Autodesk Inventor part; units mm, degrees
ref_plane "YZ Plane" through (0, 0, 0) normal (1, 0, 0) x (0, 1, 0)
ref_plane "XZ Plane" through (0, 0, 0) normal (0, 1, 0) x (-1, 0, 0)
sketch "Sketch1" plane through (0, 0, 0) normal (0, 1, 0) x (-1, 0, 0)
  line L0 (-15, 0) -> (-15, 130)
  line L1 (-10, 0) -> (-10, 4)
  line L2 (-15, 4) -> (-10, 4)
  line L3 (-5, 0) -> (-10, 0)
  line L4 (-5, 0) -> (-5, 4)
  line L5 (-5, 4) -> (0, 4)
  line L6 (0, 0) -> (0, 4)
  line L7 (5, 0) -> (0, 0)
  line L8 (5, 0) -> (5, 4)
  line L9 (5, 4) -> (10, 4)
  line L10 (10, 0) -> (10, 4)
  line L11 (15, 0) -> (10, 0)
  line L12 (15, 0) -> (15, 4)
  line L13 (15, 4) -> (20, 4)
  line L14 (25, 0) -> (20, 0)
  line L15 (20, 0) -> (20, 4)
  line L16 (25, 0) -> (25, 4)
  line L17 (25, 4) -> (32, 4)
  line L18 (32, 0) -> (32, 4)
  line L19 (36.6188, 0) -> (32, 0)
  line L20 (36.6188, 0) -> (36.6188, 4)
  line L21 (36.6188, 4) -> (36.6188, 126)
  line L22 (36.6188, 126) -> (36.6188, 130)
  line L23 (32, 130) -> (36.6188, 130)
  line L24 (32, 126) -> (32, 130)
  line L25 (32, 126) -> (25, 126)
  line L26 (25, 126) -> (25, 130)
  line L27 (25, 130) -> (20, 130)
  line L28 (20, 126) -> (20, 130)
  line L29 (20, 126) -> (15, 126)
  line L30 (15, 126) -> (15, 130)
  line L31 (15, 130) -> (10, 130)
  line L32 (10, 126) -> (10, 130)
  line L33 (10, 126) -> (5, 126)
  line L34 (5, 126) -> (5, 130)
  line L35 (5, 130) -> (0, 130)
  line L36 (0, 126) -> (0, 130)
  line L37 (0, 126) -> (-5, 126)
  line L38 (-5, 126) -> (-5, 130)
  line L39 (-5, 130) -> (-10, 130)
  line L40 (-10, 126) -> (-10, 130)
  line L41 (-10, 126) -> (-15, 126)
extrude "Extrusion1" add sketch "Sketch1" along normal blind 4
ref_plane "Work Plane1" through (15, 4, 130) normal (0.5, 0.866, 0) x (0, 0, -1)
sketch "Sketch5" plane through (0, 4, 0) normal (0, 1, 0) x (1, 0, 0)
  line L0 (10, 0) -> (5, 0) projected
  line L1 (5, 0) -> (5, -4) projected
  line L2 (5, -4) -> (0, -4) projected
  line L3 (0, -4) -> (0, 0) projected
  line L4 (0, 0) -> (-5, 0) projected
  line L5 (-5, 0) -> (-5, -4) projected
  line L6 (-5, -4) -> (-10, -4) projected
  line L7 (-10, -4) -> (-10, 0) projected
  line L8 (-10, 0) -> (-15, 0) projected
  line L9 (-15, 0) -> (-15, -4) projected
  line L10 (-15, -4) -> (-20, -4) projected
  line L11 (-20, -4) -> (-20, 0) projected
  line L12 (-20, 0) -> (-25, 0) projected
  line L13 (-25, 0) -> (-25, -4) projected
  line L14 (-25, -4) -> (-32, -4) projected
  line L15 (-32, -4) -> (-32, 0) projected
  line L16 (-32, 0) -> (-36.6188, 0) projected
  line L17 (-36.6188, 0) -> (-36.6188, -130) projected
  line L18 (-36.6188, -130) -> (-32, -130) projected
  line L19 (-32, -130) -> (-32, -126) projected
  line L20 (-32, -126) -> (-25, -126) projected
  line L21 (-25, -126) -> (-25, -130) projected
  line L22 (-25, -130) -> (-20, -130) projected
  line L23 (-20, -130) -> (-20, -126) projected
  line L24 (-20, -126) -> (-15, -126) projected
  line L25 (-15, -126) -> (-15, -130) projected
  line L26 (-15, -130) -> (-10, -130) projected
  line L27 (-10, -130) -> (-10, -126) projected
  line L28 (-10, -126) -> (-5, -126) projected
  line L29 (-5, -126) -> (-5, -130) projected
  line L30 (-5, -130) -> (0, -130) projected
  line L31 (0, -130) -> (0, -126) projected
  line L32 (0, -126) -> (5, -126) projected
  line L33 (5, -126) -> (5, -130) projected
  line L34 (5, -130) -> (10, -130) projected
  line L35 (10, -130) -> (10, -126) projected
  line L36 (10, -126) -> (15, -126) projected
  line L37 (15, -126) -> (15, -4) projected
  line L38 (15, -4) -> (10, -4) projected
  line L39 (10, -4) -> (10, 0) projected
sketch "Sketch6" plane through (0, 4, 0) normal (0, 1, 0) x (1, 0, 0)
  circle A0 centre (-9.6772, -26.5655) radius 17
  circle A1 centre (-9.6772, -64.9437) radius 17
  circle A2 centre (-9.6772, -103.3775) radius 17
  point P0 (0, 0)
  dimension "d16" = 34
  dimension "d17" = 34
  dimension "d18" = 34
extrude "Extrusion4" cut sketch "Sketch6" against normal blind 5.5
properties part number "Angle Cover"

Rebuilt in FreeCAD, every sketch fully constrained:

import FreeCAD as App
import Part
import Sketcher
from FreeCAD import Vector
Q = App.Units.Quantity

doc = App.newDocument("Part")
body = doc.addObject("PartDesign::Body", "Body")

sketch1 = body.newObject("Sketcher::SketchObject", "Sketch")
sketch1.AttachmentSupport = (doc.getObject("XZ_Plane"), [""])
sketch1.MapMode = "FlatFace"
sketch1.addGeometry([
    Part.LineSegment(Vector(15, 126, 0), Vector(15, 4, 0)),
    Part.LineSegment(Vector(15, 4, 0), Vector(10, 4, 0)),
    Part.LineSegment(Vector(10, 4, 0), Vector(10, 0, 0)),
    Part.LineSegment(Vector(10, 0, 0), Vector(5, 0, 0)),
    Part.LineSegment(Vector(5, 0, 0), Vector(5, 4, 0)),
    Part.LineSegment(Vector(5, 4, 0), Vector(0, 4, 0)),
    Part.LineSegment(Vector(0, 4, 0), Vector(0, 0, 0)),
    Part.LineSegment(Vector(0, 0, 0), Vector(-5, 0, 0)),
    Part.LineSegment(Vector(-5, 0, 0), Vector(-5, 4, 0)),
    Part.LineSegment(Vector(-5, 4, 0), Vector(-10, 4, 0)),
    Part.LineSegment(Vector(-10, 4, 0), Vector(-10, 0, 0)),
    Part.LineSegment(Vector(-10, 0, 0), Vector(-15, 0, 0)),
    Part.LineSegment(Vector(-15, 0, 0), Vector(-15, 4, 0)),
    Part.LineSegment(Vector(-15, 4, 0), Vector(-20, 4, 0)),
    Part.LineSegment(Vector(-20, 4, 0), Vector(-20, 0, 0)),
    Part.LineSegment(Vector(-20, 0, 0), Vector(-25, 0, 0)),
    Part.LineSegment(Vector(-25, 0, 0), Vector(-25, 4, 0)),
    Part.LineSegment(Vector(-25, 4, 0), Vector(-32, 4, 0)),
    Part.LineSegment(Vector(-32, 4, 0), Vector(-32, 0, 0)),
    Part.LineSegment(Vector(-32, 0, 0), Vector(-36.6, 0, 0)),
    Part.LineSegment(Vector(-36.6, 0, 0), Vector(-36.6, 130, 0)),
    Part.LineSegment(Vector(-36.6, 130, 0), Vector(-32, 130, 0)),
    Part.LineSegment(Vector(-32, 130, 0), Vector(-32, 126, 0)),
    Part.LineSegment(Vector(-32, 126, 0), Vector(-25, 126, 0)),
    Part.LineSegment(Vector(-25, 126, 0), Vector(-25, 130, 0)),
    Part.LineSegment(Vector(-25, 130, 0), Vector(-20, 130, 0)),
    Part.LineSegment(Vector(-20, 130, 0), Vector(-20, 126, 0)),
    Part.LineSegment(Vector(-20, 126, 0), Vector(-15, 126, 0)),
    Part.LineSegment(Vector(-15, 126, 0), Vector(-15, 130, 0)),
    Part.LineSegment(Vector(-15, 130, 0), Vector(-10, 130, 0)),
    Part.LineSegment(Vector(-10, 130, 0), Vector(-10, 126, 0)),
    Part.LineSegment(Vector(-10, 126, 0), Vector(-5, 126, 0)),
    Part.LineSegment(Vector(-5, 126, 0), Vector(-5, 130, 0)),
    Part.LineSegment(Vector(-5, 130, 0), Vector(0, 130, 0)),
    Part.LineSegment(Vector(0, 130, 0), Vector(0, 126, 0)),
    Part.LineSegment(Vector(0, 126, 0), Vector(5, 126, 0)),
    Part.LineSegment(Vector(5, 126, 0), Vector(5, 130, 0)),
    Part.LineSegment(Vector(5, 130, 0), Vector(10, 130, 0)),
    Part.LineSegment(Vector(10, 130, 0), Vector(10, 126, 0)),
    Part.LineSegment(Vector(10, 126, 0), Vector(15, 126, 0)),
], False)
sketch1.addConstraint([
    Sketcher.Constraint("Coincident", 0, 2, 1, 1),
    Sketcher.Constraint("Coincident", 1, 2, 2, 1),
    Sketcher.Constraint("Coincident", 2, 2, 3, 1),
    Sketcher.Constraint("Coincident", 3, 2, 4, 1),
    Sketcher.Constraint("Coincident", 4, 2, 5, 1),
    Sketcher.Constraint("Coincident", 5, 2, 6, 1),
    Sketcher.Constraint("Coincident", 6, 2, 7, 1),
    Sketcher.Constraint("Coincident", 7, 2, 8, 1),
    Sketcher.Constraint("Coincident", 8, 2, 9, 1),
    Sketcher.Constraint("Coincident", 9, 2, 10, 1),
    Sketcher.Constraint("Coincident", 10, 2, 11, 1),
    Sketcher.Constraint("Coincident", 11, 2, 12, 1),
    Sketcher.Constraint("Coincident", 12, 2, 13, 1),
    Sketcher.Constraint("Coincident", 13, 2, 14, 1),
    Sketcher.Constraint("Coincident", 14, 2, 15, 1),
    Sketcher.Constraint("Coincident", 15, 2, 16, 1),
    Sketcher.Constraint("Coincident", 16, 2, 17, 1),
    Sketcher.Constraint("Coincident", 17, 2, 18, 1),
    Sketcher.Constraint("Coincident", 18, 2, 19, 1),
    Sketcher.Constraint("Coincident", 19, 2, 20, 1),
    Sketcher.Constraint("Coincident", 20, 2, 21, 1),
    Sketcher.Constraint("Coincident", 21, 2, 22, 1),
    Sketcher.Constraint("Coincident", 22, 2, 23, 1),
    Sketcher.Constraint("Coincident", 23, 2, 24, 1),
    Sketcher.Constraint("Coincident", 24, 2, 25, 1),
    Sketcher.Constraint("Coincident", 25, 2, 26, 1),
    Sketcher.Constraint("Coincident", 26, 2, 27, 1),
    Sketcher.Constraint("Coincident", 27, 2, 28, 1),
    Sketcher.Constraint("Coincident", 28, 2, 29, 1),
    Sketcher.Constraint("Coincident", 29, 2, 30, 1),
    Sketcher.Constraint("Coincident", 30, 2, 31, 1),
    Sketcher.Constraint("Coincident", 31, 2, 32, 1),
    Sketcher.Constraint("Coincident", 32, 2, 33, 1),
    Sketcher.Constraint("Coincident", 33, 2, 34, 1),
    Sketcher.Constraint("Coincident", 34, 2, 35, 1),
    Sketcher.Constraint("Coincident", 35, 2, 36, 1),
    Sketcher.Constraint("Coincident", 36, 2, 37, 1),
    Sketcher.Constraint("Coincident", 37, 2, 38, 1),
    Sketcher.Constraint("Coincident", 38, 2, 39, 1),
    Sketcher.Constraint("Coincident", 39, 2, 0, 1),
    Sketcher.Constraint("Vertical", 0),
    Sketcher.Constraint("Horizontal", 1),
    Sketcher.Constraint("Vertical", 2),
    Sketcher.Constraint("Horizontal", 3),
    Sketcher.Constraint("Vertical", 4),
    Sketcher.Constraint("Horizontal", 5),
    Sketcher.Constraint("Vertical", 6),
    Sketcher.Constraint("Horizontal", 7),
    Sketcher.Constraint("Vertical", 8),
    Sketcher.Constraint("Horizontal", 9),
    Sketcher.Constraint("Vertical", 10),
    Sketcher.Constraint("Horizontal", 11),
    Sketcher.Constraint("Vertical", 12),
    Sketcher.Constraint("Horizontal", 13),
    Sketcher.Constraint("Vertical", 14),
    Sketcher.Constraint("Horizontal", 15),
    Sketcher.Constraint("Vertical", 16),
    Sketcher.Constraint("Horizontal", 17),
    Sketcher.Constraint("Vertical", 18),
    Sketcher.Constraint("Horizontal", 19),
    Sketcher.Constraint("Vertical", 20),
    Sketcher.Constraint("Horizontal", 21),
    Sketcher.Constraint("Vertical", 22),
    Sketcher.Constraint("Horizontal", 23),
    Sketcher.Constraint("Vertical", 24),
    Sketcher.Constraint("Horizontal", 25),
    Sketcher.Constraint("Vertical", 26),
    Sketcher.Constraint("Horizontal", 27),
    Sketcher.Constraint("Vertical", 28),
    Sketcher.Constraint("Horizontal", 29),
    Sketcher.Constraint("Vertical", 30),
    Sketcher.Constraint("Horizontal", 31),
    Sketcher.Constraint("Vertical", 32),
    Sketcher.Constraint("Horizontal", 33),
    Sketcher.Constraint("Vertical", 34),
    Sketcher.Constraint("Horizontal", 35),
    Sketcher.Constraint("Vertical", 36),
    Sketcher.Constraint("Horizontal", 37),
    Sketcher.Constraint("Vertical", 38),
    Sketcher.Constraint("Horizontal", 39),
    Sketcher.Constraint("Coincident", 6, 2, -1, 1),
    Sketcher.Constraint("Symmetric", 3, 2, 7, 2, -1, 1),
    Sketcher.Constraint("Symmetric", 2, 2, 10, 2, -1, 1),
    Sketcher.Constraint("Symmetric", 0, 2, 12, 2, -2),
    Sketcher.Constraint("Symmetric", 31, 2, 35, 2, -2),
    Sketcher.Constraint("Symmetric", 29, 2, 37, 2, -2),
    Sketcher.Constraint("Symmetric", 27, 2, 39, 2, -2),
    Sketcher.Constraint("PointOnObject", 14, 2, -1),
    Sketcher.Constraint("PointOnObject", 18, 2, -1),
    Sketcher.Constraint("PointOnObject", 33, 2, -2),
    Sketcher.Constraint("Horizontal", 1, 2, 4, 2),
    Sketcher.Constraint("Horizontal", 5, 2, 8, 2),
    Sketcher.Constraint("Horizontal", 13, 2, 16, 2),
    Sketcher.Constraint("Horizontal", 21, 2, 24, 2),
    Sketcher.Constraint("Horizontal", 23, 2, 26, 2),
    Sketcher.Constraint("Horizontal", 25, 2, 28, 2),
    Sketcher.Constraint("Horizontal", 27, 2, 30, 2),
    Sketcher.Constraint("Horizontal", 29, 2, 32, 2),
    Sketcher.Constraint("Vertical", 18, 2, 21, 2),
    Sketcher.Constraint("Vertical", 16, 2, 23, 2),
    Sketcher.Constraint("Vertical", 14, 2, 25, 2),
    Sketcher.Constraint("Vertical", 10, 2, 29, 2),
    Sketcher.Constraint("Vertical", 8, 2, 31, 2),
    Sketcher.Constraint("Equal", 1, 3),
    Sketcher.Constraint("Equal", 3, 5),
    Sketcher.Constraint("Equal", 11, 13),
    Sketcher.Constraint("Equal", 13, 15),
    Sketcher.Constraint("Equal", 18, 22),
    Sketcher.Constraint("DistanceX", 1, 2, 1, 1, Q("5 mm")),
    Sketcher.Constraint("DistanceX", 17, 2, 17, 1, Q("7 mm")),
    Sketcher.Constraint("DistanceY", 0, 2, 0, 1, Q("122 mm")),
    Sketcher.Constraint("DistanceY", 2, 2, 2, 1, Q("4 mm")),
    Sketcher.Constraint("DistanceX", 19, 2, 19, 1, Q("4.6188 mm")),
])
pad1 = body.newObject("PartDesign::Pad", "Pad")
pad1.Profile = sketch1
pad1.Length = 4
pad1.Reversed = True

sketch2 = body.newObject("Sketcher::SketchObject", "Sketch001")
sketch2.AttachmentSupport = (doc.getObject("XZ_Plane"), [""])
sketch2.MapMode = "FlatFace"
sketch2.AttachmentOffset = App.Placement(Vector(0, 0, -4), App.Rotation())
sketch2.addGeometry([
    Part.Circle(Vector(-10, 27, 0), Vector(0, 0, 1), 17),
    Part.Circle(Vector(-10, 65, 0), Vector(0, 0, 1), 17),
    Part.Circle(Vector(-10, 103, 0), Vector(0, 0, 1), 17),
], False)
sketch2.addConstraint([
    Sketcher.Constraint("Equal", 0, 1),
    Sketcher.Constraint("Equal", 1, 2),
    Sketcher.Constraint("Vertical", 0, 3, 1, 3),
    Sketcher.Constraint("Vertical", 1, 3, 2, 3),
    Sketcher.Constraint("Diameter", 0, Q("34 mm")),
    Sketcher.Constraint("DistanceY", 0, 3, 2, 3, Q("76.812 mm")),
    Sketcher.Constraint("DistanceX", 0, 3, -1, 1, Q("9.6772 mm")),
    Sketcher.Constraint("DistanceY", -1, 1, 0, 3, Q("26.5655 mm")),
    Sketcher.Constraint("DistanceY", -1, 1, 1, 3, Q("64.9437 mm")),
])
pocket1 = body.newObject("PartDesign::Pocket", "Pocket")
pocket1.Profile = sketch2
pocket1.Length = 5.5
pocket1.Reversed = True

doc.recompute()
